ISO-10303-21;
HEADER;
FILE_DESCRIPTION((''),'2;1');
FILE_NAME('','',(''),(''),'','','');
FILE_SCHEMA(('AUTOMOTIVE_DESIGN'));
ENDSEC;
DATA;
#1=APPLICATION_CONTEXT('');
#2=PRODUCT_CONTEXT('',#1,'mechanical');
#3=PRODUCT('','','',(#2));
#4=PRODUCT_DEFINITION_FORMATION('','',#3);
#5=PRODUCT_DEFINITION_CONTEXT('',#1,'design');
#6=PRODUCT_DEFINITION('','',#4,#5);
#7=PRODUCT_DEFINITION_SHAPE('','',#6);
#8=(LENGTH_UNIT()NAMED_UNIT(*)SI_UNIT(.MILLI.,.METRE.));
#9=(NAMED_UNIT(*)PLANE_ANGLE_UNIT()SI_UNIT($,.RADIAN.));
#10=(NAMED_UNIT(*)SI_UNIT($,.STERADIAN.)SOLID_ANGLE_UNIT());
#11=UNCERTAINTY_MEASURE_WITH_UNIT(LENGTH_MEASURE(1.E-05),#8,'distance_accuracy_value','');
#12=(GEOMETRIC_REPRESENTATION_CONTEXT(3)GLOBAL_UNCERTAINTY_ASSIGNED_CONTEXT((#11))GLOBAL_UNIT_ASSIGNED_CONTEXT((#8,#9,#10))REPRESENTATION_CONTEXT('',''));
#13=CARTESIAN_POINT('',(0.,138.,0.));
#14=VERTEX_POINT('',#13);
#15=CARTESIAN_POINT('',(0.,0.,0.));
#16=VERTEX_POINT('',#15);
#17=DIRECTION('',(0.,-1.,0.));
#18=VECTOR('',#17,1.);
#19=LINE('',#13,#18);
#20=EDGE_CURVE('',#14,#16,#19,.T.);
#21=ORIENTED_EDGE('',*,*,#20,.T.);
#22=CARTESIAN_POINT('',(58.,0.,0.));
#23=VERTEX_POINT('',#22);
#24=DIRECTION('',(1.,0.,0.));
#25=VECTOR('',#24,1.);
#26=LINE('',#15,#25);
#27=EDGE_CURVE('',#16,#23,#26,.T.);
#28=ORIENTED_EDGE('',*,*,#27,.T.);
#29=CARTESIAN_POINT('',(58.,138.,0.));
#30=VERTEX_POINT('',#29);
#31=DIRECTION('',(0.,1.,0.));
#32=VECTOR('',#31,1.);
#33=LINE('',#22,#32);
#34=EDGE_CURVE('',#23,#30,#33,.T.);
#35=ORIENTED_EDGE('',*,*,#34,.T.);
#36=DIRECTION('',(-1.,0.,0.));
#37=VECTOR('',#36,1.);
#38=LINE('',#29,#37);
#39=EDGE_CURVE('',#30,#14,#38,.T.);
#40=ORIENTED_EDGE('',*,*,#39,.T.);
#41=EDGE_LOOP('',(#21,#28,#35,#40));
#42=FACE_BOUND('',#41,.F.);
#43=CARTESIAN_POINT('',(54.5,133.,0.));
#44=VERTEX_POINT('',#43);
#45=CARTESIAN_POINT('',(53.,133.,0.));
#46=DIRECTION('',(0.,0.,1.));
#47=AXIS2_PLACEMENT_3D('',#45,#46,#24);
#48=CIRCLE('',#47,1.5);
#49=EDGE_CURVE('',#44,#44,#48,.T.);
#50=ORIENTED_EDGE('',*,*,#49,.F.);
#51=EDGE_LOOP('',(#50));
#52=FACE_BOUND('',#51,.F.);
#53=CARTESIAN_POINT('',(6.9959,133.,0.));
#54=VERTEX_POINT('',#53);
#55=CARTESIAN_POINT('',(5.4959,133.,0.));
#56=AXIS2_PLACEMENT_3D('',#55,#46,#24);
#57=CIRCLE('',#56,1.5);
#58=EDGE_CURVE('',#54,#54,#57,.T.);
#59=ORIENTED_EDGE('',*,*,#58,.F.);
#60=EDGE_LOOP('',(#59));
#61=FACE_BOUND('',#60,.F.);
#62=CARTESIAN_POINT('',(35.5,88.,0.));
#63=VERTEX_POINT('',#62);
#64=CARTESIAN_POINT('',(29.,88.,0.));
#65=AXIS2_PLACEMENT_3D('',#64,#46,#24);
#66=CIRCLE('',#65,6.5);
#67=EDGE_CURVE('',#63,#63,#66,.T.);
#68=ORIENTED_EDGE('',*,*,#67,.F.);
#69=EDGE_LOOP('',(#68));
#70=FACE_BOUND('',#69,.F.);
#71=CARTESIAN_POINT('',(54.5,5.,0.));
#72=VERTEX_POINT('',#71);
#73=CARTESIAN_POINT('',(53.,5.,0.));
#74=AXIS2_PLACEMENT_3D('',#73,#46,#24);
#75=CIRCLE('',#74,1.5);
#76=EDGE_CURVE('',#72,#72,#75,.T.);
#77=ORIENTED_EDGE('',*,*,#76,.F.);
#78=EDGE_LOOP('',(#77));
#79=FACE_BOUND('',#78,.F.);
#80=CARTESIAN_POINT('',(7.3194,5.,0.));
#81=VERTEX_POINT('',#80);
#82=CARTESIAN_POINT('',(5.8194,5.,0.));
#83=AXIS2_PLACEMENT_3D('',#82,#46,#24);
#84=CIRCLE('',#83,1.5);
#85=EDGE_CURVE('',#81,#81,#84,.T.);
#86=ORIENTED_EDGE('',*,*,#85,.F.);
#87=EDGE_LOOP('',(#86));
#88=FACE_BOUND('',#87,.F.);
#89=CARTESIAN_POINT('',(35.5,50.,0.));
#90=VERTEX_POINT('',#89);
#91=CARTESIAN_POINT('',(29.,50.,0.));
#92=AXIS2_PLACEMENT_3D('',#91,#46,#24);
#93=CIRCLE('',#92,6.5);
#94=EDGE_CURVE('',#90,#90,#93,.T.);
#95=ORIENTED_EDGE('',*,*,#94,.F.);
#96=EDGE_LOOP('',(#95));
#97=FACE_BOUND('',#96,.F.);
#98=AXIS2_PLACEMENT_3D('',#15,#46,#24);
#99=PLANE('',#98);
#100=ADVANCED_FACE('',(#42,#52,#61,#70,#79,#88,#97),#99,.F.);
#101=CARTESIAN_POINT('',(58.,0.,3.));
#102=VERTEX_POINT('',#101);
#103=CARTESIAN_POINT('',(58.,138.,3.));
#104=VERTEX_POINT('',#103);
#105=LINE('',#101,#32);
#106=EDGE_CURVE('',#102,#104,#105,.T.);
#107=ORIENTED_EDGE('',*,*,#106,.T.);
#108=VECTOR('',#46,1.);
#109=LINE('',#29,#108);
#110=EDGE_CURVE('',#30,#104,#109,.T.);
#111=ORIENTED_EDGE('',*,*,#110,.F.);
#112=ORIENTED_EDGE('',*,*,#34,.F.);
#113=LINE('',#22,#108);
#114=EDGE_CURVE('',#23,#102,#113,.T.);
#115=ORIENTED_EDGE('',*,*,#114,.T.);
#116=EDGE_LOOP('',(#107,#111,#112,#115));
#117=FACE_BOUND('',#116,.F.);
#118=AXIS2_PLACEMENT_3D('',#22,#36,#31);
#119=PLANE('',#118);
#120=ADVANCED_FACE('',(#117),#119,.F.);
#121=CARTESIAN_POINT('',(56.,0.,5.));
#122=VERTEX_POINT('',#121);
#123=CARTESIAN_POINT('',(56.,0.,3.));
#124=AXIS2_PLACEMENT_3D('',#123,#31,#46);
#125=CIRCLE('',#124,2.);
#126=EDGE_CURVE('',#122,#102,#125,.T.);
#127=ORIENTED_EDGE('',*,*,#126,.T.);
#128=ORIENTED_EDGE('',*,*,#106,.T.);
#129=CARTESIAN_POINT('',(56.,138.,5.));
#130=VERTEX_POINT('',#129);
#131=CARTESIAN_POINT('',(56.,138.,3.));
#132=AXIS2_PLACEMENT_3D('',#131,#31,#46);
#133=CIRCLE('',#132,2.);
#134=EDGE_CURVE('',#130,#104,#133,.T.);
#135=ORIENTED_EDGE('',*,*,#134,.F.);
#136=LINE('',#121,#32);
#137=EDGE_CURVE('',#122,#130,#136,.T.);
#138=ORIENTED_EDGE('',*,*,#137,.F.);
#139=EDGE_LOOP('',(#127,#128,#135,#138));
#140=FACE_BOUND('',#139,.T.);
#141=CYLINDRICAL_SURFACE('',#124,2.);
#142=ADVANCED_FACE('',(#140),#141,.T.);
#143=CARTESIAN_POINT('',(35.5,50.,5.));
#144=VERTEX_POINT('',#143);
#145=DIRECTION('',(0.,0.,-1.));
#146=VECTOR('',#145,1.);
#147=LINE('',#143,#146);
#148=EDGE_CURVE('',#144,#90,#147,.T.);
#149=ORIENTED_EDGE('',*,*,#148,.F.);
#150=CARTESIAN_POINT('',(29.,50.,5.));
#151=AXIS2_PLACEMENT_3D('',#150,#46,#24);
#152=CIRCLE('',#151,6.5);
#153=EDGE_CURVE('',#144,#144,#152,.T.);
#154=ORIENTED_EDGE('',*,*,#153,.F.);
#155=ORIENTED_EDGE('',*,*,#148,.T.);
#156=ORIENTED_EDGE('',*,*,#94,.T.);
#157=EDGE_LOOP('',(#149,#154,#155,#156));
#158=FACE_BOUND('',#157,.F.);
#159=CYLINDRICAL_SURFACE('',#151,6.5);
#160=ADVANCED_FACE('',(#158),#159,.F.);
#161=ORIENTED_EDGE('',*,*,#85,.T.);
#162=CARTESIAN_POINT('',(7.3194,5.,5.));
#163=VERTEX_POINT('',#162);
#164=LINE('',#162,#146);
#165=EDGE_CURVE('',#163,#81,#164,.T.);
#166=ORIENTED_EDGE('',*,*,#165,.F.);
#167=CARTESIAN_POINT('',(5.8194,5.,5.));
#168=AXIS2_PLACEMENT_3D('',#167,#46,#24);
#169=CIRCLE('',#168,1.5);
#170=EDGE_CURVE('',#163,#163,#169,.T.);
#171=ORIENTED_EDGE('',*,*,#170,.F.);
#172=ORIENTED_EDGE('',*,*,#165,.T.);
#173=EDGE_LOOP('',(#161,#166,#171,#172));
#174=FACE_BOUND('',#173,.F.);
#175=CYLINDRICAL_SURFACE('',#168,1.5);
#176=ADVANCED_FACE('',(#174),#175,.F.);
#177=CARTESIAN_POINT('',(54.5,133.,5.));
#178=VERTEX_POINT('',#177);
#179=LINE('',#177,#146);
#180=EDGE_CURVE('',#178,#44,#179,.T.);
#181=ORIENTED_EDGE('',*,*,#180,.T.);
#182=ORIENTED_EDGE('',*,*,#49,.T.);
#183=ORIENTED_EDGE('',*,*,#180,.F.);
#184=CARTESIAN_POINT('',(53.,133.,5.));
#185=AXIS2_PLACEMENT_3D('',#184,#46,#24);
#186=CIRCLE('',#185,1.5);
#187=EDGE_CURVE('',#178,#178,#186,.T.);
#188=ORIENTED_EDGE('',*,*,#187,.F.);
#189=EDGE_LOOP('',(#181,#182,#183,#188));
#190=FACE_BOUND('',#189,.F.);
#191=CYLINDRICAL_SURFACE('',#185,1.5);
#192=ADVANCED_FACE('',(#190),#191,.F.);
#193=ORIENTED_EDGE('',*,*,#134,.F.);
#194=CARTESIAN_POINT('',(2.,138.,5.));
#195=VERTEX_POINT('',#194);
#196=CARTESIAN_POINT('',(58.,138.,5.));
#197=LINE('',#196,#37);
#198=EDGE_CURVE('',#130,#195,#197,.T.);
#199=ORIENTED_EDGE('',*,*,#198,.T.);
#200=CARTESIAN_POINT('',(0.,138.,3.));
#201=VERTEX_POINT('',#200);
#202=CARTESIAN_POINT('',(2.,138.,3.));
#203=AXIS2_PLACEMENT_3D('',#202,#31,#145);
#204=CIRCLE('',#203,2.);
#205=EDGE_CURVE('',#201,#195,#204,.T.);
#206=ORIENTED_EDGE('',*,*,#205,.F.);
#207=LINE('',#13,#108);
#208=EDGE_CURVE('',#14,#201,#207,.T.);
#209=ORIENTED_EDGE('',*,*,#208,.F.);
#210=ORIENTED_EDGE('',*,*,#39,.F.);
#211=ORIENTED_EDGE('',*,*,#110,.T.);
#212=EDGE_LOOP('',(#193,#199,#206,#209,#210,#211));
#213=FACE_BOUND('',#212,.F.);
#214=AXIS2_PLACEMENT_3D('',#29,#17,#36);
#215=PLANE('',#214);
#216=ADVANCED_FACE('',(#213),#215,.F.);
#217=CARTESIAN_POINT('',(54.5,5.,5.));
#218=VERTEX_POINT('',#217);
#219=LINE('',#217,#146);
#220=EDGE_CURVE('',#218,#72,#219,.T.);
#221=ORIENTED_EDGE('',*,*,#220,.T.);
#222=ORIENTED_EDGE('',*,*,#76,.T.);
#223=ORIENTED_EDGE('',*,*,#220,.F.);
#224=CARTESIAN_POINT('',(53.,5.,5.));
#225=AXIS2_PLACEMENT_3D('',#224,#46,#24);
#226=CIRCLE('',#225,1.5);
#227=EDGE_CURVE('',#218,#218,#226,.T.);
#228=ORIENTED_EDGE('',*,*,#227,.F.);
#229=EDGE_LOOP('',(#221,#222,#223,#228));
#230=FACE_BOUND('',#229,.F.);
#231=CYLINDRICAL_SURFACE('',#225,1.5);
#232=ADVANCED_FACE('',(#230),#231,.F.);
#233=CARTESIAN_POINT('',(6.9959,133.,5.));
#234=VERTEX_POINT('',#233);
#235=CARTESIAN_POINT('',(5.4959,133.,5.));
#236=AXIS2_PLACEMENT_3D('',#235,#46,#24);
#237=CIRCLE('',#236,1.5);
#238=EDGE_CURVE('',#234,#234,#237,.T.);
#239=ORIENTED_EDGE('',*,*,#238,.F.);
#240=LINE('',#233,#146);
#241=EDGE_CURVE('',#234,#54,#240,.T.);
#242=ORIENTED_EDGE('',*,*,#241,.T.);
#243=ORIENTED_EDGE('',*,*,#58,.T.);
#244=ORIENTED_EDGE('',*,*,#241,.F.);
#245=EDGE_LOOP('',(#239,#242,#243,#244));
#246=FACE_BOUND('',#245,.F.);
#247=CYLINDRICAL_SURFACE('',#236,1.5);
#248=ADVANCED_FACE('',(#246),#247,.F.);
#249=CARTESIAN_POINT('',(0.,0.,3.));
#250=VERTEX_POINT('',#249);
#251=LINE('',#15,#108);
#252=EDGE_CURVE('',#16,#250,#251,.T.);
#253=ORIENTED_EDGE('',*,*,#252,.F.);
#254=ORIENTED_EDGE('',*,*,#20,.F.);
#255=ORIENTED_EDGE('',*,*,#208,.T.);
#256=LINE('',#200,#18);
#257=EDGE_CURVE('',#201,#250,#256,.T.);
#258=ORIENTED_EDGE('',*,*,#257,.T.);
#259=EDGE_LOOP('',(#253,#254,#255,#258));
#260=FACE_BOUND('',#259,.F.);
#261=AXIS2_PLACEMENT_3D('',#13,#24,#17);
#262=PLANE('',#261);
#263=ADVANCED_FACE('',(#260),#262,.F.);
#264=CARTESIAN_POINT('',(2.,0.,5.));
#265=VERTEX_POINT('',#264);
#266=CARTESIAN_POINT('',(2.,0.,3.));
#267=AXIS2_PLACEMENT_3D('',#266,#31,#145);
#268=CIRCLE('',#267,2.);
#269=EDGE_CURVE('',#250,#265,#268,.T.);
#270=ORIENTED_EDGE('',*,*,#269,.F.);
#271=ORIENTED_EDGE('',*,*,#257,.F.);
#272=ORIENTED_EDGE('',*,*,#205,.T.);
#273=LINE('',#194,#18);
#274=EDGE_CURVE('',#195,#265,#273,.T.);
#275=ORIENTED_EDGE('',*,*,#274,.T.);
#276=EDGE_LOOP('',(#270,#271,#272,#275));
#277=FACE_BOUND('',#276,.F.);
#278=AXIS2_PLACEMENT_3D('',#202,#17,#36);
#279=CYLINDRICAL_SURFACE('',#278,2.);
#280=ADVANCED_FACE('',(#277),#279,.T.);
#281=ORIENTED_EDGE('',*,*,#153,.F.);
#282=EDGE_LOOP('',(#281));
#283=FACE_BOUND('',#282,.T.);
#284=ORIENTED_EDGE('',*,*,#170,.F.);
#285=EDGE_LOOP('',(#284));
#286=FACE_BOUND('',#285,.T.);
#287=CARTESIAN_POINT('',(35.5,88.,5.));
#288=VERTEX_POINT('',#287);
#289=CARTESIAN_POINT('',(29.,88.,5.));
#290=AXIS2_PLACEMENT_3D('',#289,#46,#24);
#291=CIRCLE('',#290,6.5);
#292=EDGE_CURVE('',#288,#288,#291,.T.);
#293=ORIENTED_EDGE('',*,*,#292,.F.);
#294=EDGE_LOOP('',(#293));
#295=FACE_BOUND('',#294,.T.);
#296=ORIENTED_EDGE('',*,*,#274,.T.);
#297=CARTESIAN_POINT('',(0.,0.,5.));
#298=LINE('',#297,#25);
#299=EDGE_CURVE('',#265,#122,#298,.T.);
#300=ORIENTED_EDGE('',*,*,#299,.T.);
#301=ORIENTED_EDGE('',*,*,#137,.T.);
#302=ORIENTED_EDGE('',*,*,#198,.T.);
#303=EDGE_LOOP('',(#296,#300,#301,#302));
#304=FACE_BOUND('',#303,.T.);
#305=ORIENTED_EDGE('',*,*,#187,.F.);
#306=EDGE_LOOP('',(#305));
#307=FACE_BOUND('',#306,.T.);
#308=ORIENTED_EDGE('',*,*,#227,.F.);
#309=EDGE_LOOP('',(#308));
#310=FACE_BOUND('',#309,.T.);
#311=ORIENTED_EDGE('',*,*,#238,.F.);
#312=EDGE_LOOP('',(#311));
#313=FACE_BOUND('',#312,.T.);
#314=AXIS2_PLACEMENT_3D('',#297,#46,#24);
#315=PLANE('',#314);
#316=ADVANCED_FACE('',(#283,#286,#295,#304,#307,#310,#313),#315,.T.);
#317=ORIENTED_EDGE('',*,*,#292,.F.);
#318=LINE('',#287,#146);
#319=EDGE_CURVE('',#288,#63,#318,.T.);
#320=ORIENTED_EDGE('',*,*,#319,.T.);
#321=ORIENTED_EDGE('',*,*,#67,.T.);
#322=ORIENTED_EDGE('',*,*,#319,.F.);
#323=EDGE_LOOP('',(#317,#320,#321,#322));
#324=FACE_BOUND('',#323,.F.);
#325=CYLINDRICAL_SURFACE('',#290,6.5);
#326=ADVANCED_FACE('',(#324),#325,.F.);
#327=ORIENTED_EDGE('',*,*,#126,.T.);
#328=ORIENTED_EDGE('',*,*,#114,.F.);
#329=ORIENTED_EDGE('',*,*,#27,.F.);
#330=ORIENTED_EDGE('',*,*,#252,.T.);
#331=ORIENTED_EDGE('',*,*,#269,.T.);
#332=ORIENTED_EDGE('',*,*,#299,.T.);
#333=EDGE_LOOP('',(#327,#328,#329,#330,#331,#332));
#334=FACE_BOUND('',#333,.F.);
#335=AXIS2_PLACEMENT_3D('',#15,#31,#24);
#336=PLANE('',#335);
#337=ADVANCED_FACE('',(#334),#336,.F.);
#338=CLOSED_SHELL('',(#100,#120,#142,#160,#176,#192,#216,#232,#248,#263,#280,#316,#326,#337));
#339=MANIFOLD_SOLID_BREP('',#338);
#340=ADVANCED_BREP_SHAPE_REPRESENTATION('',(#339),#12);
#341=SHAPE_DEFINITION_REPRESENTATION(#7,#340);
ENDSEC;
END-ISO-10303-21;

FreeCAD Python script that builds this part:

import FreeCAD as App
import Part
import Sketcher

V = App.Vector


def edges_at(feature, points):
    """Names of the edges that pass closest to the given points."""
    edges = feature.Shape.Edges
    near = lambda p: min(range(len(edges)), key=lambda i: edges[i].distToShape(Part.Vertex(*p))[0])
    return sorted({f"Edge{near(p) + 1}" for p in points})


def add_polygon(sketch, points):
    """Adds a closed chain of lines whose ends are joined by coincident constraints."""
    first, n = sketch.GeometryCount, len(points)
    for a, b in zip(points, points[1:] + points[:1]):
        sketch.addGeometry(Part.LineSegment(App.Vector(*a, 0), App.Vector(*b, 0)), False)
    for i in range(n):
        sketch.addConstraint(Sketcher.Constraint("Coincident", first + i, 2, first + (i + 1) % n, 1))

doc = App.newDocument("Part")
body = doc.addObject("PartDesign::Body", "Body")

sketch1 = doc.addObject("Sketcher::SketchObject", "Sketch")
body.addObject(sketch1)
sketch1.AttachmentSupport = (doc.XY_Plane, [""])
sketch1.MapMode = "FlatFace"
add_polygon(sketch1, [(0, 138), (0, 0), (58, 0), (58, 138)])
sketch1.addConstraint(Sketcher.Constraint("Vertical", 0))
sketch1.addConstraint(Sketcher.Constraint("Horizontal", 1))
sketch1.addConstraint(Sketcher.Constraint("Vertical", 2))
sketch1.addConstraint(Sketcher.Constraint("Horizontal", 3))
sketch1.addConstraint(Sketcher.Constraint("Coincident", 0, 2, -1, 1))
sketch1.addConstraint(Sketcher.Constraint("DistanceX", 1, 1, 1, 2, 58.0))
sketch1.addConstraint(Sketcher.Constraint("DistanceY", 0, 2, 0, 1, 138.0))
pad1 = doc.addObject("PartDesign::Pad", "Pad")
body.addObject(pad1)
pad1.Profile = sketch1
pad1.Length = 5

sketch2 = doc.addObject("Sketcher::SketchObject", "Sketch001")
body.addObject(sketch2)
sketch2.AttachmentSupport = (doc.XY_Plane, [""])
sketch2.MapMode = "FlatFace"
sketch2.AttachmentOffset = App.Placement(V(0, 0, 5), App.Rotation())
sketch2.addGeometry(Part.Circle(V(53, 5, 0), V(0, 0, 1), 1.5), False)
sketch2.addGeometry(Part.Circle(V(5.8, 5, 0), V(0, 0, 1), 1.5), False)
sketch2.addGeometry(Part.Circle(V(5.5, 133, 0), V(0, 0, 1), 1.5), False)
sketch2.addGeometry(Part.Circle(V(53, 133, 0), V(0, 0, 1), 1.5), False)
sketch2.addConstraint(Sketcher.Constraint("Equal", 0, 1))
sketch2.addConstraint(Sketcher.Constraint("Equal", 1, 2))
sketch2.addConstraint(Sketcher.Constraint("Equal", 2, 3))
sketch2.addConstraint(Sketcher.Constraint("Horizontal", 0, 3, 1, 3))
sketch2.addConstraint(Sketcher.Constraint("Horizontal", 2, 3, 3, 3))
sketch2.addConstraint(Sketcher.Constraint("Vertical", 0, 3, 3, 3))
sketch2.addConstraint(Sketcher.Constraint("Diameter", 0, 3.0))
sketch2.addConstraint(Sketcher.Constraint("DistanceX", -1, 1, 0, 3, 53.0))
sketch2.addConstraint(Sketcher.Constraint("DistanceY", -1, 1, 0, 3, 5.0))
sketch2.addConstraint(Sketcher.Constraint("DistanceY", -1, 1, 2, 3, 133.0))
sketch2.addConstraint(Sketcher.Constraint("DistanceX", -1, 1, 2, 3, 5.496))
sketch2.addConstraint(Sketcher.Constraint("DistanceX", -1, 1, 1, 3, 5.8194))
pocket1 = doc.addObject("PartDesign::Pocket", "Pocket")
body.addObject(pocket1)
pocket1.Profile = sketch2
pocket1.Type = "ThroughAll"
doc.recompute()

fillet = doc.addObject("PartDesign::Fillet", "Fillet")
body.addObject(fillet)
fillet.Base = (pocket1, edges_at(pocket1, [(58, 69, 5), (0, 69, 5)]))
fillet.Radius = 2

sketch3 = doc.addObject("Sketcher::SketchObject", "Sketch002")
body.addObject(sketch3)
sketch3.AttachmentSupport = (doc.XY_Plane, [""])
sketch3.MapMode = "FlatFace"
sketch3.AttachmentOffset = App.Placement(V(0, 0, 5), App.Rotation())
sketch3.addGeometry(Part.Circle(V(29, 88, 0), V(0, 0, 1), 6), False)
sketch3.addGeometry(Part.Circle(V(29, 50, 0), V(0, 0, 1), 6), False)
sketch3.addConstraint(Sketcher.Constraint("Equal", 0, 1))
sketch3.addConstraint(Sketcher.Constraint("Vertical", 0, 3, 1, 3))
sketch3.addConstraint(Sketcher.Constraint("Diameter", 0, 13.0))
sketch3.addConstraint(Sketcher.Constraint("DistanceX", -1, 1, 0, 3, 29.0))
sketch3.addConstraint(Sketcher.Constraint("DistanceY", -1, 1, 0, 3, 88.0))
sketch3.addConstraint(Sketcher.Constraint("DistanceY", -1, 1, 1, 3, 50.0))
pocket2 = doc.addObject("PartDesign::Pocket", "Pocket001")
body.addObject(pocket2)
pocket2.Profile = sketch3
pocket2.Type = "ThroughAll"

doc.recompute()
